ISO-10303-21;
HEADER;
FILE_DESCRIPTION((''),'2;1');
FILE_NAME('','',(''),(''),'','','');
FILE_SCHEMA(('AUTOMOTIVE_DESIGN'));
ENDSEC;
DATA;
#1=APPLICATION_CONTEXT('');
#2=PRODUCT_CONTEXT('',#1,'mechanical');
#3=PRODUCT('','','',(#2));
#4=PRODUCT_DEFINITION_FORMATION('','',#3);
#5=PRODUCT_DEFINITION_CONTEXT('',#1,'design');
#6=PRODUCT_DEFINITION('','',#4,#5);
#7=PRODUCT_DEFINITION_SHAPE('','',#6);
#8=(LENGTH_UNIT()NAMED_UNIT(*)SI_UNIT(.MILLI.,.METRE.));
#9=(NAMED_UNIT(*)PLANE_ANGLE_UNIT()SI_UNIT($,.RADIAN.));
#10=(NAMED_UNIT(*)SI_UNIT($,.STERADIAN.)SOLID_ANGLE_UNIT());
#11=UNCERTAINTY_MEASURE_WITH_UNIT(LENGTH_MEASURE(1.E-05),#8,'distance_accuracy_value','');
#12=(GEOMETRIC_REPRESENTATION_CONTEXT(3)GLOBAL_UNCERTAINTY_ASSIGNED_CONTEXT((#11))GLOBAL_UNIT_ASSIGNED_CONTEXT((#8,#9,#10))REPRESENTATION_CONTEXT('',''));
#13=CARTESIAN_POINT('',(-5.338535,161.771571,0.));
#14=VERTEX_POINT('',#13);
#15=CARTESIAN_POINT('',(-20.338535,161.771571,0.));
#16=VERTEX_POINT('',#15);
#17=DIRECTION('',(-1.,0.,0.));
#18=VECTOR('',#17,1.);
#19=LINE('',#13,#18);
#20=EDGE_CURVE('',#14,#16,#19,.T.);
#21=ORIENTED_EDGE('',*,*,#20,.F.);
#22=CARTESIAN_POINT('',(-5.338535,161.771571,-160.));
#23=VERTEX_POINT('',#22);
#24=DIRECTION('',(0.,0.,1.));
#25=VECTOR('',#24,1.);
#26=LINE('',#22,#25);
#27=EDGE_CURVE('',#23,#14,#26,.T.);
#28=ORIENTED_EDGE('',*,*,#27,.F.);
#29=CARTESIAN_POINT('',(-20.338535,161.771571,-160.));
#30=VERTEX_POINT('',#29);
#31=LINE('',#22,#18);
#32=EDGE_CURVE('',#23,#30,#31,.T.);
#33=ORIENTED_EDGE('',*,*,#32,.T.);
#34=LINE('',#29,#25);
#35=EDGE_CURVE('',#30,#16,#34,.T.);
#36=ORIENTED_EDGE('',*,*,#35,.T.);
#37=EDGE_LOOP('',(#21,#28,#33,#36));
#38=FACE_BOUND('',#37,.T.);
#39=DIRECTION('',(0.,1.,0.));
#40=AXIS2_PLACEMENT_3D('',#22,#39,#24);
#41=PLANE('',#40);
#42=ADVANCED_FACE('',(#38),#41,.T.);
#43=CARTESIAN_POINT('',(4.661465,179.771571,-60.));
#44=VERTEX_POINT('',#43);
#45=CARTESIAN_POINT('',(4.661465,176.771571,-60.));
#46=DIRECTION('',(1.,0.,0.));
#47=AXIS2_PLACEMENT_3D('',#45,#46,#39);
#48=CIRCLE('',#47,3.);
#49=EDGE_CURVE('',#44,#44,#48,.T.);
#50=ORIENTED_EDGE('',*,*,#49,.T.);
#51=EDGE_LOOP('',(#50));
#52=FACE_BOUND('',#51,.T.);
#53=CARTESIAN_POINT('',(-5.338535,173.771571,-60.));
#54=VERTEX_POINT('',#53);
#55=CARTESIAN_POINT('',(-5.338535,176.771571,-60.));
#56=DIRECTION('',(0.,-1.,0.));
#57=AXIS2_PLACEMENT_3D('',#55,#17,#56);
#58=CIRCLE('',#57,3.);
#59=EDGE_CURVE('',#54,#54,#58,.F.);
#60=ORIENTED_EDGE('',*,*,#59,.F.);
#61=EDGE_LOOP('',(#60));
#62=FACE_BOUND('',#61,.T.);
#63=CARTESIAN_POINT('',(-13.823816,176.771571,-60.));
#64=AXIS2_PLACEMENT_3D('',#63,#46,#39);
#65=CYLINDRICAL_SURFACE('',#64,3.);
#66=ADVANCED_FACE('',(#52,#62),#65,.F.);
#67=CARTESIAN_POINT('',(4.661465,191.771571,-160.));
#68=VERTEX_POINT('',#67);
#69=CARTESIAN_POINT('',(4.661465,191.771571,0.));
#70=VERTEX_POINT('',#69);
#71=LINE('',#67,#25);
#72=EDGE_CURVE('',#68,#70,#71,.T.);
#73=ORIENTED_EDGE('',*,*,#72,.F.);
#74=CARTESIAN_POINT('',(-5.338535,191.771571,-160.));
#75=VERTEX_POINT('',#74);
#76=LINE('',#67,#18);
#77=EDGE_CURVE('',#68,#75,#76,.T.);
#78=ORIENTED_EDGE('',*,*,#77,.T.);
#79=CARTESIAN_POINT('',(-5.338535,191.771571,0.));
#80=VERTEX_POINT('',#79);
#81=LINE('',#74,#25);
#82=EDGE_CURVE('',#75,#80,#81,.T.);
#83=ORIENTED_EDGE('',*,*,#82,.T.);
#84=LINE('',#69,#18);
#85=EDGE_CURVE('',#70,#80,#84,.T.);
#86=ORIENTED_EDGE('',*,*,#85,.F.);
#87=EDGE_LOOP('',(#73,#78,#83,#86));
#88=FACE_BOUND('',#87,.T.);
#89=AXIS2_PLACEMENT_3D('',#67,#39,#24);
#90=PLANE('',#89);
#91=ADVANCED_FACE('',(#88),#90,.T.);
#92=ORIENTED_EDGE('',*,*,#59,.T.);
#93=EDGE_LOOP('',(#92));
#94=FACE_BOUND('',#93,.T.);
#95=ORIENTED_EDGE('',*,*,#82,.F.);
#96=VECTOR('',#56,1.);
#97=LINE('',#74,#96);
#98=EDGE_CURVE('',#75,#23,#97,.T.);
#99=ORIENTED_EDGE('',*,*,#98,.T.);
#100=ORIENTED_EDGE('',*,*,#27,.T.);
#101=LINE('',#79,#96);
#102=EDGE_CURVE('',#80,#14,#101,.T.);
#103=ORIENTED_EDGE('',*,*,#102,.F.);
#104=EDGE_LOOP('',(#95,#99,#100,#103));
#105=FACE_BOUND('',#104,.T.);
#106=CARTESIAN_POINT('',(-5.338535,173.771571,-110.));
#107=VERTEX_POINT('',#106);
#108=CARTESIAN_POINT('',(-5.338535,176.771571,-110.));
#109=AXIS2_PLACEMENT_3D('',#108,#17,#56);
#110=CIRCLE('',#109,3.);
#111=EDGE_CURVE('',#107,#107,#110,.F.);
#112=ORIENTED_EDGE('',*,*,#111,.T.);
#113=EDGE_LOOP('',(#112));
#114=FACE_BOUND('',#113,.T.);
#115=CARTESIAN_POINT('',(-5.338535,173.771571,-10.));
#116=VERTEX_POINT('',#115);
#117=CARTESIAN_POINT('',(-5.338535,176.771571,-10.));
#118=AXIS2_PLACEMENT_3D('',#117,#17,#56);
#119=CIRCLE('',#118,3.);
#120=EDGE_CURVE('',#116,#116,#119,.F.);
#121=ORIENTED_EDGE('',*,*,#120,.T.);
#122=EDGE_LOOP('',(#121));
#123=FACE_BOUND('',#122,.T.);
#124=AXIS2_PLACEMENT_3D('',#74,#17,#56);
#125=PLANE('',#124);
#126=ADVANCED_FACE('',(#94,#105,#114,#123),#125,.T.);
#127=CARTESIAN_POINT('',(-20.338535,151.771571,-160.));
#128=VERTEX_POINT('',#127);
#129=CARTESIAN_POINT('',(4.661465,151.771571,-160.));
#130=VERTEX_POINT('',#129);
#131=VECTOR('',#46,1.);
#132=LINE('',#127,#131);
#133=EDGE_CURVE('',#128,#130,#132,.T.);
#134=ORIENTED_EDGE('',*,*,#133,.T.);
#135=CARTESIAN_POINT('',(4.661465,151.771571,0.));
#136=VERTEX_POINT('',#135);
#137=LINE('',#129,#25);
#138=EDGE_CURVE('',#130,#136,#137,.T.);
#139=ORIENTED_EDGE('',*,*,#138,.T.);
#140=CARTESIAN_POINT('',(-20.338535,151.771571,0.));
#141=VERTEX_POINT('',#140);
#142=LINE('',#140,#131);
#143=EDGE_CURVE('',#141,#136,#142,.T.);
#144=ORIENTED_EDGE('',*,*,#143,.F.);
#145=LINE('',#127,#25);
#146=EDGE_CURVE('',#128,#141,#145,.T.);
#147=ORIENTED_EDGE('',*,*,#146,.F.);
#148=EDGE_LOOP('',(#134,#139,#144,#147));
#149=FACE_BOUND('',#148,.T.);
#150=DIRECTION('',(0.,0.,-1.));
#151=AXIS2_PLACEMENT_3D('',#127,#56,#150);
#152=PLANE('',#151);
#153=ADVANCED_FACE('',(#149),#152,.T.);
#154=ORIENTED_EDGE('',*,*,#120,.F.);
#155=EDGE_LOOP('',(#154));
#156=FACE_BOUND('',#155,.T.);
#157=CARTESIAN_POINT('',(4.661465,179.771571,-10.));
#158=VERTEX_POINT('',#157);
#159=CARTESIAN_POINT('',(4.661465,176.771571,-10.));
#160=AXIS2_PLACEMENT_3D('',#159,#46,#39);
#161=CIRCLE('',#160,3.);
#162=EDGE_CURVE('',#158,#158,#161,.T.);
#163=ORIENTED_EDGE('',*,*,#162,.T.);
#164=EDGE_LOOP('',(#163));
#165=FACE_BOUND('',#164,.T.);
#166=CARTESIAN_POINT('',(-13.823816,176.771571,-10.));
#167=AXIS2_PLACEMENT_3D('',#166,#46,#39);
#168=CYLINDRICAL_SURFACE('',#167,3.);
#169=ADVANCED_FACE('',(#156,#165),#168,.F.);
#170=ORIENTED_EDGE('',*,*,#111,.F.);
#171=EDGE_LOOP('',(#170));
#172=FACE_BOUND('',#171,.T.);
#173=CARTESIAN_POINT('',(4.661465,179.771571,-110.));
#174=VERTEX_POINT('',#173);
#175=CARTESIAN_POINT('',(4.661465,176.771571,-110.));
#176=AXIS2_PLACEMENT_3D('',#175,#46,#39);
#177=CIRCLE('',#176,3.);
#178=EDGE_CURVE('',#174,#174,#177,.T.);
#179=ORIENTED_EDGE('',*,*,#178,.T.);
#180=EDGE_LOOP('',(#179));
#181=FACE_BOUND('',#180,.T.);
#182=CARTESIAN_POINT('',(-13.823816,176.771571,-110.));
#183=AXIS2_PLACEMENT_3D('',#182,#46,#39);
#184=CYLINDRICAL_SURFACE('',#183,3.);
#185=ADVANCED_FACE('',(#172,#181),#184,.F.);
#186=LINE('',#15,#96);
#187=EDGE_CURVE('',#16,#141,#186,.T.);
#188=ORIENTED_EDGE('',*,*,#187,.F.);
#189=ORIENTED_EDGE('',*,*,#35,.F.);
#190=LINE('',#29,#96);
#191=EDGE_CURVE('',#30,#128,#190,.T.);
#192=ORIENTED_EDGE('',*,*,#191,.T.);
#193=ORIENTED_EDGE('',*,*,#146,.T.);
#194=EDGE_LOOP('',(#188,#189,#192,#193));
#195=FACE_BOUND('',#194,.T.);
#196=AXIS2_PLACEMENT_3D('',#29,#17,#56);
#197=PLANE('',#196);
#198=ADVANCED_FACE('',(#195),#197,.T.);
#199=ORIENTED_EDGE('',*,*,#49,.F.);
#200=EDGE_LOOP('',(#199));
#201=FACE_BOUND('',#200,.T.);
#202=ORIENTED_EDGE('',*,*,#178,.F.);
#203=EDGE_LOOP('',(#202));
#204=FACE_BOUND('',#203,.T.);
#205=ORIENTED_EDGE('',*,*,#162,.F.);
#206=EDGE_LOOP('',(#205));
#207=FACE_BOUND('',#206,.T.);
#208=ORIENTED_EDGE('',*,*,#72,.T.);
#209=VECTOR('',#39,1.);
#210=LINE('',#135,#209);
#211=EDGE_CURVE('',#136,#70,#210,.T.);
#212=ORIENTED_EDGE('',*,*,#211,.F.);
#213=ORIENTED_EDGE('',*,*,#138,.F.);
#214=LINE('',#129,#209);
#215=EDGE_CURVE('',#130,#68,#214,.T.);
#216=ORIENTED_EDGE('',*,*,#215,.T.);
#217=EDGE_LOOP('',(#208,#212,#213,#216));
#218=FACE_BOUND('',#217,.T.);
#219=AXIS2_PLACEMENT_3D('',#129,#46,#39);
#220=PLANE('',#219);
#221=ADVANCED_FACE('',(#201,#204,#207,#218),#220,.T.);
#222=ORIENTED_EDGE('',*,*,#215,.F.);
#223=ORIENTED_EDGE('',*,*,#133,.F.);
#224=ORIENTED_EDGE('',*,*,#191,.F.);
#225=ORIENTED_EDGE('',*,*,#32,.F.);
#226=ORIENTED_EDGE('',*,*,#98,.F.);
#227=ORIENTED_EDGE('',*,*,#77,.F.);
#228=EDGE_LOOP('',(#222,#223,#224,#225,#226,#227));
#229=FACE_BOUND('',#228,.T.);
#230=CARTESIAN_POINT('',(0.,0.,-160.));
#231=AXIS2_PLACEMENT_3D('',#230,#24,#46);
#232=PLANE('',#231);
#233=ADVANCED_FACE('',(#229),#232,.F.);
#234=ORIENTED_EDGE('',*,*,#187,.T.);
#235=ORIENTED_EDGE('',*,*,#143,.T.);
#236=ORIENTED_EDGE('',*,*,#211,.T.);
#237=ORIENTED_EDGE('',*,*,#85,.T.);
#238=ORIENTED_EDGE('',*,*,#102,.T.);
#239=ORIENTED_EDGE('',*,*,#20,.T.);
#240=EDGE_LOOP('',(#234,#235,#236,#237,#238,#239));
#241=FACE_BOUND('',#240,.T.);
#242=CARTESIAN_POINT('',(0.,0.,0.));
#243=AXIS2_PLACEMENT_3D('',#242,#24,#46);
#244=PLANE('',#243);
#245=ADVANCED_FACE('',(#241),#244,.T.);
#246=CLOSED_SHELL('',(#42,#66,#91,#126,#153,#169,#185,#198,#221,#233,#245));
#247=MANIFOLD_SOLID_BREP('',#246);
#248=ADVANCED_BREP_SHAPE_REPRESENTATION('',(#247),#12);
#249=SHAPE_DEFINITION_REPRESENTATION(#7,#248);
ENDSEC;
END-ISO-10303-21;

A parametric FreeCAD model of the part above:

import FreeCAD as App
import Part
import Sketcher

V = App.Vector


def add_polygon(sketch, points):
    """Adds a closed chain of lines whose ends are joined by coincident constraints."""
    first, n = sketch.GeometryCount, len(points)
    for a, b in zip(points, points[1:] + points[:1]):
        sketch.addGeometry(Part.LineSegment(App.Vector(*a, 0), App.Vector(*b, 0)), False)
    for i in range(n):
        sketch.addConstraint(Sketcher.Constraint("Coincident", first + i, 2, first + (i + 1) % n, 1))

doc = App.newDocument("Part")
body = doc.addObject("PartDesign::Body", "Body")

sketch1 = body.newObject("Sketcher::SketchObject", "Sketch")
sketch1.AttachmentSupport = (doc.getObject("XY_Plane"), [""])
sketch1.MapMode = "FlatFace"
add_polygon(sketch1, [(-5, 192), (-5, 162), (-20, 162), (-20, 152), (5, 152), (5, 192)])
sketch1.addConstraint([
    Sketcher.Constraint("Vertical", 0),
    Sketcher.Constraint("Horizontal", 1),
    Sketcher.Constraint("Vertical", 2),
    Sketcher.Constraint("Horizontal", 3),
    Sketcher.Constraint("Vertical", 4),
    Sketcher.Constraint("Horizontal", 5),
    Sketcher.Constraint("Equal", 5, 2),
    Sketcher.Constraint("DistanceX", 1, 2, 1, 1, 15.0),
    Sketcher.Constraint("DistanceX", 3, 1, 3, 2, 25.0),
    Sketcher.Constraint("DistanceY", 0, 2, 0, 1, 30.0),
    Sketcher.Constraint("DistanceY", -1, 1, 0, 2, 161.771571),
    Sketcher.Constraint("DistanceX", 0, 2, -1, 1, 5.338535),
])
pad1 = body.newObject("PartDesign::Pad", "Pad")
pad1.Profile = sketch1
pad1.Length = 160
pad1.Reversed = True

sketch2 = body.newObject("Sketcher::SketchObject", "Sketch001")
sketch2.AttachmentSupport = (doc.getObject("YZ_Plane"), [""])
sketch2.MapMode = "FlatFace"
sketch2.AttachmentOffset = App.Placement(V(0, 0, -5.338535), App.Rotation())
sketch2.addGeometry(Part.Circle(V(176.8, -110, 0), V(0, 0, 1), 3), False)
sketch2.addConstraint([
    Sketcher.Constraint("Diameter", 0, 6.0),
    Sketcher.Constraint("DistanceY", 0, 3, -1, 1, 110.0),
    Sketcher.Constraint("DistanceX", -1, 1, 0, 3, 176.771571),
])
pocket1 = body.newObject("PartDesign::Pocket", "Pocket")
pocket1.Profile = sketch2
pocket1.Length = 262.000668
pocket1.Reversed = True
doc.recompute()

linearpattern = body.newObject("PartDesign::LinearPattern", "LinearPattern")
linearpattern.Originals = [pocket1]
linearpattern.Direction = (doc.getObject("Z_Axis"), [""])
linearpattern.Mode = "offset"
linearpattern.Offset = 50
linearpattern.Occurrences = 3
body.Tip = linearpattern

doc.recompute()
